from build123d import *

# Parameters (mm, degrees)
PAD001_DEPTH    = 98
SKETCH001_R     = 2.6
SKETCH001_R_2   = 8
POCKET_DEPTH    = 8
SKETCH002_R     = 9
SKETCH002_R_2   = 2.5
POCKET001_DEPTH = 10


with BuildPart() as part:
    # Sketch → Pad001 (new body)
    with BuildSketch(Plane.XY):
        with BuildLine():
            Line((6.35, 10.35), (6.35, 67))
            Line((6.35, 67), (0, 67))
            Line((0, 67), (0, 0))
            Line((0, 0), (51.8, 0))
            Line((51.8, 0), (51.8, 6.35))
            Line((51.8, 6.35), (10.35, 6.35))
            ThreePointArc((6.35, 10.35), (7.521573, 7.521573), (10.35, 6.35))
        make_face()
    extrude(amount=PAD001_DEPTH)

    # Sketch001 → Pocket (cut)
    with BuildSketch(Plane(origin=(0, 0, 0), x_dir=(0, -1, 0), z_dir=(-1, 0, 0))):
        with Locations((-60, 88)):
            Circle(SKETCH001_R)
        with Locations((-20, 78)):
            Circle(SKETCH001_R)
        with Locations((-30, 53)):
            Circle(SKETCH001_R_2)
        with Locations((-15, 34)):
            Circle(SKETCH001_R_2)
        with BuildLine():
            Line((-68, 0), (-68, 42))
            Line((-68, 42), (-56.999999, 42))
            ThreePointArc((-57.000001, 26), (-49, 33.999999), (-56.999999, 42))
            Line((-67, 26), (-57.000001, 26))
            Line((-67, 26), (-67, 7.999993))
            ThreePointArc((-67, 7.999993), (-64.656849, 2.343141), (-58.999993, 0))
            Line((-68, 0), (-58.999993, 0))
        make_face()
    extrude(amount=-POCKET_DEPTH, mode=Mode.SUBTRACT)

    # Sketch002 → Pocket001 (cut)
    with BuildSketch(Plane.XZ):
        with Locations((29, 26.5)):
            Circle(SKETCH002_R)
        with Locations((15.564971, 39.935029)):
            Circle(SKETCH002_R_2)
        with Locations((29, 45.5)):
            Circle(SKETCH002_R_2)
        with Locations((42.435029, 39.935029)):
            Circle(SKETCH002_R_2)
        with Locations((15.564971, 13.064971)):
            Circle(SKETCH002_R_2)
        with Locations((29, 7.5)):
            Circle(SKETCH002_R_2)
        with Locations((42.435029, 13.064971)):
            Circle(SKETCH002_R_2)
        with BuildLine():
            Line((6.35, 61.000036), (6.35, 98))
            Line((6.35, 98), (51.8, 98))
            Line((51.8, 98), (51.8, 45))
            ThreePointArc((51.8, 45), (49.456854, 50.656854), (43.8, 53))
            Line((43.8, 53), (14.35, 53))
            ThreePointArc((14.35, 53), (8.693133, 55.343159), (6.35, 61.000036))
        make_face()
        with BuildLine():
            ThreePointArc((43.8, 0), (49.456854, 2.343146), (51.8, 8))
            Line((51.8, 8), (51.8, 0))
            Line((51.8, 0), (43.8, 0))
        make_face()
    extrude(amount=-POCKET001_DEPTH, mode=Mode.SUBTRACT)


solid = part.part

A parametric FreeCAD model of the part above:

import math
import FreeCAD as App
import Part
import Sketcher
Q = App.Units.Quantity

doc = App.newDocument("Part")
body = doc.addObject("PartDesign::Body", "Body")

sketch1 = body.newObject("Sketcher::SketchObject", "Sketch")
sketch1.AttachmentSupport = (doc.getObject("XY_Plane"), [""])
sketch1.MapMode = "FlatFace"
sketch1.addGeometry(Part.LineSegment(App.Vector(6.3, 10.3, 0), App.Vector(6.3, 67, 0)), False)
sketch1.addGeometry(Part.LineSegment(App.Vector(6.3, 67, 0), App.Vector(0, 67, 0)), False)
sketch1.addGeometry(Part.LineSegment(App.Vector(0, 67, 0), App.Vector(0, 0, 0)), False)
sketch1.addGeometry(Part.LineSegment(App.Vector(0, 0, 0), App.Vector(51.8, 0, 0)), False)
sketch1.addGeometry(Part.LineSegment(App.Vector(51.8, 0, 0), App.Vector(51.8, 6.3, 0)), False)
sketch1.addGeometry(Part.LineSegment(App.Vector(51.8, 6.3, 0), App.Vector(10.3, 6.3, 0)), False)
sketch1.addGeometry(Part.ArcOfCircle(Part.Circle(App.Vector(10.4, 10.4, 0), App.Vector(0, 0, 1), 4), math.radians(-180), math.radians(-90)), False)
sketch1.addConstraint(Sketcher.Constraint("Coincident", 0, 2, 1, 1))
sketch1.addConstraint(Sketcher.Constraint("Coincident", 1, 2, 2, 1))
sketch1.addConstraint(Sketcher.Constraint("Coincident", 2, 2, 3, 1))
sketch1.addConstraint(Sketcher.Constraint("Coincident", 3, 2, 4, 1))
sketch1.addConstraint(Sketcher.Constraint("Coincident", 4, 2, 5, 1))
sketch1.addConstraint(Sketcher.Constraint("Tangent", 5, 2, 6, 2))
sketch1.addConstraint(Sketcher.Constraint("Tangent", 6, 1, 0, 1))
sketch1.addConstraint(Sketcher.Constraint("Vertical", 0))
sketch1.addConstraint(Sketcher.Constraint("Horizontal", 1))
sketch1.addConstraint(Sketcher.Constraint("Vertical", 2))
sketch1.addConstraint(Sketcher.Constraint("Horizontal", 3))
sketch1.addConstraint(Sketcher.Constraint("Vertical", 4))
sketch1.addConstraint(Sketcher.Constraint("Horizontal", 5))
sketch1.addConstraint(Sketcher.Constraint("Coincident", 2, 2, -1, 1))
sketch1.addConstraint(Sketcher.Constraint("Equal", 1, 4))
sketch1.addConstraint(Sketcher.Constraint("Radius", 6, Q("4 mm")))
sketch1.addConstraint(Sketcher.Constraint("DistanceY", 2, 2, 2, 1, Q("67 mm")))
sketch1.addConstraint(Sketcher.Constraint("DistanceX", 3, 1, 3, 2, Q("51.8 mm")))
sketch1.addConstraint(Sketcher.Constraint("DistanceX", 1, 2, 1, 1, Q("6.35 mm")))
pad1 = body.newObject("PartDesign::Pad", "Pad")
pad1.Profile = sketch1
pad1.Length = 98

sketch2 = body.newObject("Sketcher::SketchObject", "Sketch001")
sketch2.AttachmentSupport = (doc.getObject("YZ_Plane"), [""])
sketch2.MapMode = "FlatFace"
sketch2.addGeometry(Part.Circle(App.Vector(60, 88, 0), App.Vector(0, 0, 1), 2.6), False)
sketch2.addGeometry(Part.Circle(App.Vector(20, 78, 0), App.Vector(0, 0, 1), 2.6), False)
sketch2.addGeometry(Part.Circle(App.Vector(30, 53, 0), App.Vector(0, 0, 1), 8), False)
sketch2.addGeometry(Part.Circle(App.Vector(15, 34, 0), App.Vector(0, 0, 1), 8), False)
sketch2.addGeometry(Part.LineSegment(App.Vector(68, 42, 0), App.Vector(68, 0, 0)), False)
sketch2.addGeometry(Part.LineSegment(App.Vector(68, 0, 0), App.Vector(59, 0, 0)), False)
sketch2.addGeometry(Part.ArcOfCircle(Part.Circle(App.Vector(59, 8, 0), App.Vector(0, 0, 1), 8), math.radians(-90), math.radians(0)), False)
sketch2.addGeometry(Part.LineSegment(App.Vector(67, 8, 0), App.Vector(67, 26, 0)), False)
sketch2.addGeometry(Part.LineSegment(App.Vector(67, 26, 0), App.Vector(57, 26, 0)), False)
sketch2.addGeometry(Part.ArcOfCircle(Part.Circle(App.Vector(57, 34, 0), App.Vector(0, 0, 1), 8), math.radians(90), math.radians(270)), False)
sketch2.addGeometry(Part.LineSegment(App.Vector(57, 42, 0), App.Vector(68, 42, 0)), False)
sketch2.addConstraint(Sketcher.Constraint("Coincident", 4, 2, 5, 1))
sketch2.addConstraint(Sketcher.Constraint("Tangent", 5, 2, 6, 1))
sketch2.addConstraint(Sketcher.Constraint("Tangent", 6, 2, 7, 1))
sketch2.addConstraint(Sketcher.Constraint("Coincident", 7, 2, 8, 1))
sketch2.addConstraint(Sketcher.Constraint("Tangent", 8, 2, 9, 2))
sketch2.addConstraint(Sketcher.Constraint("Tangent", 9, 1, 10, 1))
sketch2.addConstraint(Sketcher.Constraint("Coincident", 10, 2, 4, 1))
sketch2.addConstraint(Sketcher.Constraint("Vertical", 4))
sketch2.addConstraint(Sketcher.Constraint("Horizontal", 5))
sketch2.addConstraint(Sketcher.Constraint("Vertical", 7))
sketch2.addConstraint(Sketcher.Constraint("Horizontal", 8))
sketch2.addConstraint(Sketcher.Constraint("Horizontal", 10))
sketch2.addConstraint(Sketcher.Constraint("Equal", 0, 1))
sketch2.addConstraint(Sketcher.Constraint("Equal", 2, 3))
sketch2.addConstraint(Sketcher.Constraint("Equal", 3, 6))
sketch2.addConstraint(Sketcher.Constraint("Equal", 6, 9))
sketch2.addConstraint(Sketcher.Constraint("PointOnObject", 4, 2, -1))
sketch2.addConstraint(Sketcher.Constraint("Horizontal", 3, 3, 9, 3))
sketch2.addConstraint(Sketcher.Constraint("Diameter", 2, Q("16 mm")))
sketch2.addConstraint(Sketcher.Constraint("Diameter", 0, Q("5.2 mm")))
sketch2.addConstraint(Sketcher.Constraint("DistanceX", 8, 2, 8, 1, Q("9.999999 mm")))
sketch2.addConstraint(Sketcher.Constraint("DistanceX", 10, 1, 10, 2, Q("11.000001 mm")))
sketch2.addConstraint(Sketcher.Constraint("DistanceY", 4, 2, 4, 1, Q("42 mm")))
sketch2.addConstraint(Sketcher.Constraint("DistanceX", -1, 1, 0, 3, Q("60 mm")))
sketch2.addConstraint(Sketcher.Constraint("DistanceY", -1, 1, 0, 3, Q("88 mm")))
sketch2.addConstraint(Sketcher.Constraint("DistanceX", -1, 1, 1, 3, Q("20 mm")))
sketch2.addConstraint(Sketcher.Constraint("DistanceY", -1, 1, 1, 3, Q("78 mm")))
sketch2.addConstraint(Sketcher.Constraint("DistanceX", -1, 1, 2, 3, Q("30 mm")))
sketch2.addConstraint(Sketcher.Constraint("DistanceY", -1, 1, 2, 3, Q("53 mm")))
sketch2.addConstraint(Sketcher.Constraint("DistanceX", -1, 1, 3, 3, Q("15 mm")))
sketch2.addConstraint(Sketcher.Constraint("DistanceX", -1, 1, 6, 3, Q("58.999999 mm")))
pocket1 = body.newObject("PartDesign::Pocket", "Pocket")
pocket1.Profile = sketch2
pocket1.Length = 8
pocket1.Reversed = True

sketch3 = body.newObject("Sketcher::SketchObject", "Sketch002")
sketch3.AttachmentSupport = (doc.getObject("XZ_Plane"), [""])
sketch3.MapMode = "FlatFace"
sketch3.addGeometry(Part.Circle(App.Vector(29, 26.5, 0), App.Vector(0, 0, 1), 9), False)
sketch3.addGeometry(Part.Circle(App.Vector(15.6, 39.9, 0), App.Vector(0, 0, 1), 2.5), False)
sketch3.addGeometry(Part.Circle(App.Vector(29, 45.5, 0), App.Vector(0, 0, 1), 2.5), False)
sketch3.addGeometry(Part.Circle(App.Vector(42.4, 39.9, 0), App.Vector(0, 0, 1), 2.5), False)
sketch3.addGeometry(Part.Circle(App.Vector(15.6, 13.1, 0), App.Vector(0, 0, 1), 2.5), False)
sketch3.addGeometry(Part.Circle(App.Vector(29, 7.5, 0), App.Vector(0, 0, 1), 2.5), False)
sketch3.addGeometry(Part.Circle(App.Vector(42.4, 13.1, 0), App.Vector(0, 0, 1), 2.5), False)
sketch3.addGeometry(Part.LineSegment(App.Vector(6.3, 98, 0), App.Vector(6.3, 61, 0)), False)
sketch3.addGeometry(Part.ArcOfCircle(Part.Circle(App.Vector(14.4, 61, 0), App.Vector(0, 0, 1), 8), math.radians(180), math.radians(270)), False)
sketch3.addGeometry(Part.LineSegment(App.Vector(14.3, 53, 0), App.Vector(43.8, 53, 0)), False)
sketch3.addGeometry(Part.ArcOfCircle(Part.Circle(App.Vector(43.8, 45, 0), App.Vector(0, 0, 1), 8), math.radians(0), math.radians(90)), False)
sketch3.addGeometry(Part.LineSegment(App.Vector(51.8, 45, 0), App.Vector(51.8, 98, 0)), False)
sketch3.addGeometry(Part.LineSegment(App.Vector(51.8, 98, 0), App.Vector(6.3, 98, 0)), False)
sketch3.addGeometry(Part.ArcOfCircle(Part.Circle(App.Vector(43.8, 8, 0), App.Vector(0, 0, 1), 8), math.radians(-90), math.radians(0)), False)
sketch3.addGeometry(Part.LineSegment(App.Vector(43.8, 0, 0), App.Vector(51.8, 0, 0)), False)
sketch3.addGeometry(Part.LineSegment(App.Vector(51.8, 0, 0), App.Vector(51.8, 8, 0)), False)
sketch3.addConstraint(Sketcher.Constraint("Coincident", 7, 2, 8, 1))
sketch3.addConstraint(Sketcher.Constraint("Tangent", 8, 2, 9, 1))
sketch3.addConstraint(Sketcher.Constraint("Tangent", 9, 2, 10, 2))
sketch3.addConstraint(Sketcher.Constraint("Tangent", 10, 1, 11, 1))
sketch3.addConstraint(Sketcher.Constraint("Coincident", 11, 2, 12, 1))
sketch3.addConstraint(Sketcher.Constraint("Coincident", 12, 2, 7, 1))
sketch3.addConstraint(Sketcher.Constraint("Tangent", 13, 1, 14, 1))
sketch3.addConstraint(Sketcher.Constraint("Coincident", 14, 2, 15, 1))
sketch3.addConstraint(Sketcher.Constraint("Tangent", 15, 2, 13, 2))
sketch3.addConstraint(Sketcher.Constraint("Vertical", 7))
sketch3.addConstraint(Sketcher.Constraint("Horizontal", 9))
sketch3.addConstraint(Sketcher.Constraint("Vertical", 11))
sketch3.addConstraint(Sketcher.Constraint("Horizontal", 12))
sketch3.addConstraint(Sketcher.Constraint("Horizontal", 14))
sketch3.addConstraint(Sketcher.Constraint("Vertical", 15))
sketch3.addConstraint(Sketcher.Constraint("Equal", 1, 2))
sketch3.addConstraint(Sketcher.Constraint("Equal", 2, 3))
sketch3.addConstraint(Sketcher.Constraint("Equal", 3, 4))
sketch3.addConstraint(Sketcher.Constraint("Equal", 4, 5))
sketch3.addConstraint(Sketcher.Constraint("Equal", 5, 6))
sketch3.addConstraint(Sketcher.Constraint("Equal", 8, 10))
sketch3.addConstraint(Sketcher.Constraint("Equal", 10, 13))
sketch3.addConstraint(Sketcher.Constraint("PointOnObject", 13, 1, -1))
sketch3.addConstraint(Sketcher.Constraint("Horizontal", 1, 3, 3, 3))
sketch3.addConstraint(Sketcher.Constraint("Horizontal", 4, 3, 6, 3))
sketch3.addConstraint(Sketcher.Constraint("Vertical", 0, 3, 2, 3))
sketch3.addConstraint(Sketcher.Constraint("Vertical", 1, 3, 4, 3))
sketch3.addConstraint(Sketcher.Constraint("Vertical", 2, 3, 5, 3))
sketch3.addConstraint(Sketcher.Constraint("Vertical", 3, 3, 6, 3))
sketch3.addConstraint(Sketcher.Constraint("Vertical", 10, 3, 13, 3))
sketch3.addConstraint(Sketcher.Constraint("Diameter", 0, Q("18 mm")))
sketch3.addConstraint(Sketcher.Constraint("Diameter", 1, Q("5 mm")))
sketch3.addConstraint(Sketcher.Constraint("Radius", 8, Q("8.000001 mm")))
sketch3.addConstraint(Sketcher.Constraint("DistanceY", 11, 1, 11, 2, Q("53 mm")))
sketch3.addConstraint(Sketcher.Constraint("DistanceX", -1, 1, 0, 3, Q("29 mm")))
sketch3.addConstraint(Sketcher.Constraint("DistanceY", -1, 1, 8, 3, Q("61.000001 mm")))
sketch3.addConstraint(Sketcher.Constraint("DistanceY", 0, 3, 2, 3, Q("19 mm")))
sketch3.addConstraint(Sketcher.Constraint("DistanceY", 5, 3, 0, 3, Q("19 mm")))
sketch3.addConstraint(Sketcher.Constraint("DistanceX", 9, 1, 9, 2, Q("29.45 mm")))
sketch3.addConstraint(Sketcher.Constraint("DistanceY", -1, 1, 0, 3, Q("26.5 mm")))
sketch3.addConstraint(Sketcher.Constraint("DistanceX", -1, 1, 10, 3, Q("43.799999 mm")))
sketch3.addConstraint(Sketcher.Constraint("DistanceY", 7, 2, 7, 1, Q("36.999964 mm")))
sketch3.addConstraint(Sketcher.Constraint("DistanceX", -1, 1, 1, 3, Q("15.564971 mm")))
sketch3.addConstraint(Sketcher.Constraint("DistanceY", -1, 1, 1, 3, Q("39.935029 mm")))
sketch3.addConstraint(Sketcher.Constraint("DistanceX", -1, 1, 3, 3, Q("42.435029 mm")))
sketch3.addConstraint(Sketcher.Constraint("DistanceY", -1, 1, 4, 3, Q("13.064971 mm")))
pocket2 = body.newObject("PartDesign::Pocket", "Pocket001")
pocket2.Profile = sketch3
pocket2.Length = 10

doc.recompute()
